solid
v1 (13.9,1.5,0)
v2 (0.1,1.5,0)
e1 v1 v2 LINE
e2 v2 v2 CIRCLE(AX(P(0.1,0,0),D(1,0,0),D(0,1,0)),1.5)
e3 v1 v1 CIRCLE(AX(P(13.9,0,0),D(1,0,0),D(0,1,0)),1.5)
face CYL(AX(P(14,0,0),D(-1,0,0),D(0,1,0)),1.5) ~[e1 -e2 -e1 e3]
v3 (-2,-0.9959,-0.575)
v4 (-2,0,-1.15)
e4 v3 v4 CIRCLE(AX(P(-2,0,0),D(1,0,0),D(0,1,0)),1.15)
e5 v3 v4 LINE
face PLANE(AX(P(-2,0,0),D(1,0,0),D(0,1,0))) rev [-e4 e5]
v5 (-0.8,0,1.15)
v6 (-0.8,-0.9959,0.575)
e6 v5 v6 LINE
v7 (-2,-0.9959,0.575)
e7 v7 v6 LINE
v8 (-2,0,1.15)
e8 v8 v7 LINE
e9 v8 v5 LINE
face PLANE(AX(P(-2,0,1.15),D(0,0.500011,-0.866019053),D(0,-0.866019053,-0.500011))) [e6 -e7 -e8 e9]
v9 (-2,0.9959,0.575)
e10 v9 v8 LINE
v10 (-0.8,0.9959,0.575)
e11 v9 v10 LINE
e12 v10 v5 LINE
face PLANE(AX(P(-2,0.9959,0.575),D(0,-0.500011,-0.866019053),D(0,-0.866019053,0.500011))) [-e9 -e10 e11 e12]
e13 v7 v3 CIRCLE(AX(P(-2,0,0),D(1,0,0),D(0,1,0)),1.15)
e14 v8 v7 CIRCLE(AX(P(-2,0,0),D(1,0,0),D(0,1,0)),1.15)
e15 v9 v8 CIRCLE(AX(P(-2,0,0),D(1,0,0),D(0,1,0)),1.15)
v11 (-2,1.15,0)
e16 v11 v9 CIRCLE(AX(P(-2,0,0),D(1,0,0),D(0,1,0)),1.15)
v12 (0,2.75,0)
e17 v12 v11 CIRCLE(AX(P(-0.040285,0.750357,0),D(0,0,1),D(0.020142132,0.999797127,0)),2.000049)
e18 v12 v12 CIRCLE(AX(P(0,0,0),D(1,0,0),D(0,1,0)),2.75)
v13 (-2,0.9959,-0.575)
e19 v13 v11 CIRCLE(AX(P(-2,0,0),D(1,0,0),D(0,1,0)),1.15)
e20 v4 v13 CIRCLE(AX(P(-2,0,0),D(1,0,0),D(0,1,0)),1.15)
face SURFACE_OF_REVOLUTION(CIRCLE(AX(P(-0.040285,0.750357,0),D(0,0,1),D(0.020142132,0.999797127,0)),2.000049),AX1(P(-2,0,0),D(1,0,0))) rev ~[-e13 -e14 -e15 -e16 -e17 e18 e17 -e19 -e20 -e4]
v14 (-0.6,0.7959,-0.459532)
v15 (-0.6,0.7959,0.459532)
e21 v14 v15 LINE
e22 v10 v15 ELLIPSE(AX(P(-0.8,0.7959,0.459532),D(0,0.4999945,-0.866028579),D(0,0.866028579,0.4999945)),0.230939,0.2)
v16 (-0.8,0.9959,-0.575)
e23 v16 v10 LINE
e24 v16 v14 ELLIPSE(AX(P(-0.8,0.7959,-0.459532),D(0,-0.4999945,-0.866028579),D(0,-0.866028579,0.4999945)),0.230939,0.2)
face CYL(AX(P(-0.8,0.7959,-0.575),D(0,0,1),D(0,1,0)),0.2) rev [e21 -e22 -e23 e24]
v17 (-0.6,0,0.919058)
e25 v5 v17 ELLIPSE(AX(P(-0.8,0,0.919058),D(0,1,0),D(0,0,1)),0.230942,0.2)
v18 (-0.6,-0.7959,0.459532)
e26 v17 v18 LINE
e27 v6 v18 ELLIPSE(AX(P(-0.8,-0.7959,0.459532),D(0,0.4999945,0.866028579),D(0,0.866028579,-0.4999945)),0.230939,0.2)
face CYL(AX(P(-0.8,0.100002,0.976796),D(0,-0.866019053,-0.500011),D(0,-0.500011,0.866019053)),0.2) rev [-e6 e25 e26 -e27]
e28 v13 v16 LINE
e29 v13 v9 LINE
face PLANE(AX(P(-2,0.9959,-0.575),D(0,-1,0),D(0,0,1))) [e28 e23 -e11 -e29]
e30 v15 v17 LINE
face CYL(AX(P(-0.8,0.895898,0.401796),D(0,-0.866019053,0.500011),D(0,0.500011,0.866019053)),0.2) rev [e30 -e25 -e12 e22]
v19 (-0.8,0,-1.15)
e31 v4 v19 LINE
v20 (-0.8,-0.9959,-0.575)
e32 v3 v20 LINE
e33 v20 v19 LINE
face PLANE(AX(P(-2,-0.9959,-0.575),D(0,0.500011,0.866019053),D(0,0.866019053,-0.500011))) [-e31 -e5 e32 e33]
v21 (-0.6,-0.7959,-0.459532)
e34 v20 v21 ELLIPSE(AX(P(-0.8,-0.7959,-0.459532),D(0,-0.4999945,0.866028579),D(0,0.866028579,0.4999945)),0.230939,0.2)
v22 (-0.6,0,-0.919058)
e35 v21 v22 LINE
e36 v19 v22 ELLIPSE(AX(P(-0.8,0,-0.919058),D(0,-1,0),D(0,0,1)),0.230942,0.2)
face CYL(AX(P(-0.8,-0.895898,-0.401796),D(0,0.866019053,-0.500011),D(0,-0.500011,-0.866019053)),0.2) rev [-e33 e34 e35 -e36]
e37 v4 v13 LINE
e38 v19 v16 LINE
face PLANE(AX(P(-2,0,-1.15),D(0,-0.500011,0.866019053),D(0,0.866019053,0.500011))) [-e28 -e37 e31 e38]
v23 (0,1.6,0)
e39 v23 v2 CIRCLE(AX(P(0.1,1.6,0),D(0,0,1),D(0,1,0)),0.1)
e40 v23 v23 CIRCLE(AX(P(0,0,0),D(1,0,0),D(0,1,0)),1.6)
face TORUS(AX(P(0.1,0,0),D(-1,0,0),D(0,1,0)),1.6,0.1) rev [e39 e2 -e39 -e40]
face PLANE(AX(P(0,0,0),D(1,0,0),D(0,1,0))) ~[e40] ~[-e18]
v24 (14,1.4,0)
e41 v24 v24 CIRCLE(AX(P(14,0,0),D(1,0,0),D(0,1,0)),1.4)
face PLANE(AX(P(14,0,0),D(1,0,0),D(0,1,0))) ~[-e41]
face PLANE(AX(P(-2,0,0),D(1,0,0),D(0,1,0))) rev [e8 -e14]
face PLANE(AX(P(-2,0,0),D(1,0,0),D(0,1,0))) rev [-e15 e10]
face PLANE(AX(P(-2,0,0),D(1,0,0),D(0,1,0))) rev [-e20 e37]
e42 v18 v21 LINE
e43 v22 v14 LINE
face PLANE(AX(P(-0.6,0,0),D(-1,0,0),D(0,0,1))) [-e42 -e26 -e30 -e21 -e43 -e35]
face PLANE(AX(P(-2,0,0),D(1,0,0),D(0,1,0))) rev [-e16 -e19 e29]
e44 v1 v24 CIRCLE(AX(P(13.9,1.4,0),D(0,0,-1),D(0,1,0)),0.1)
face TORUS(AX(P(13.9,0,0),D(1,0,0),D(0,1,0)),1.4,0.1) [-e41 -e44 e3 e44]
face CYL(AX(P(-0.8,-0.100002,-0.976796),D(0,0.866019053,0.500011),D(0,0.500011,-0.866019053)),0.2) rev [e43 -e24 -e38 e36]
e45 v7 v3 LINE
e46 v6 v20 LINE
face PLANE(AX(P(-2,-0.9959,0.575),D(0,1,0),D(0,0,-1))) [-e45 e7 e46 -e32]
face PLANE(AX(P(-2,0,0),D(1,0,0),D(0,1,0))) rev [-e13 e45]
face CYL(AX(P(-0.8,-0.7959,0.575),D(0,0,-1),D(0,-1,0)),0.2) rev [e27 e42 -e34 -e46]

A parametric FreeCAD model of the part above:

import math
import FreeCAD as App
import Part
import Sketcher
Q = App.Units.Quantity


def edges_at(feature, points):
    """Names of the edges that pass closest to the given points."""
    edges = feature.Shape.Edges
    near = lambda p: min(range(len(edges)), key=lambda i: edges[i].distToShape(Part.Vertex(*p))[0])
    return sorted({f"Edge{near(p) + 1}" for p in points})

doc = App.newDocument("Part")
params = doc.addObject("Spreadsheet::Sheet", "Params")
for row, (alias, value) in enumerate([
    ("sketch1_radius", "2 mm"),
    ("sketch1_width", "14 mm"),
    ("sketch1_height", "1.5 mm"),
    ("sketch1_height2", "1.15 mm"),
    ("revolution_angle", "360 deg"),
    ("sketch2_height", "1.15 mm"),
    ("sketch2_length", "1.15 mm"),
    ("pocket1_length", "1.4 mm"),
    ("fillet_radius", "0.2 mm"),
    ("fillet2_radius", "0.1 mm"),
    ("fillet3_radius", "0.1 mm"),
], start=1):
    params.set(f"A{row}", alias)
    params.set(f"B{row}", "=" + value)
    params.setAlias(f"B{row}", alias)

body = doc.addObject("PartDesign::Body", "Body")

sketch1 = body.newObject("Sketcher::SketchObject", "Sketch")
sketch1.AttachmentSupport = (doc.getObject("XY_Plane"), [""])
sketch1.MapMode = "FlatFace"
sketch1.addGeometry([
    Part.LineSegment(App.Vector(14, 1.5, 0), App.Vector(0, 1.5, 0)),
    Part.LineSegment(App.Vector(0, 1.5, 0), App.Vector(0, 2.75, 0)),
    Part.ArcOfCircle(Part.Circle(App.Vector(-0.0403, 0.7504, 0), App.Vector(0, 0, 1), 2.000006), math.radians(88.845415), math.radians(168.474888)),
    Part.LineSegment(App.Vector(-2, 1.15, 0), App.Vector(-2, 0, 0)),
    Part.LineSegment(App.Vector(-2, 0, 0), App.Vector(14, 0, 0)),
    Part.LineSegment(App.Vector(14, 0, 0), App.Vector(14, 1.5, 0)),
], False)
sketch1.addConstraint([
    Sketcher.Constraint("Coincident", 0, 2, 1, 1),
    Sketcher.Constraint("Coincident", 1, 2, 2, 1),
    Sketcher.Constraint("Coincident", 2, 2, 3, 1),
    Sketcher.Constraint("Coincident", 3, 2, 4, 1),
    Sketcher.Constraint("Coincident", 4, 2, 5, 1),
    Sketcher.Constraint("Coincident", 5, 2, 0, 1),
    Sketcher.Constraint("Horizontal", 0),
    Sketcher.Constraint("Vertical", 1),
    Sketcher.Constraint("Vertical", 3),
    Sketcher.Constraint("Horizontal", 4),
    Sketcher.Constraint("Vertical", 5),
    Sketcher.Constraint("PointOnObject", 0, 2, -2),
    Sketcher.Constraint("PointOnObject", 3, 2, -1),
    Sketcher.Constraint("Radius", 2, Q("2 mm")),
    Sketcher.Constraint("DistanceX", 0, 2, 0, 1, Q("14 mm")),
    Sketcher.Constraint("DistanceY", 5, 1, 5, 2, Q("1.5 mm")),
    Sketcher.Constraint("DistanceX", 2, 2, -1, 1, Q("2 mm")),
    Sketcher.Constraint("DistanceY", 3, 2, 3, 1, Q("1.15 mm")),
    Sketcher.Constraint("DistanceY", -1, 1, 1, 2, Q("2.75 mm")),
])
sketch1.setExpression("Constraints[13]", "Params.sketch1_radius")
sketch1.setExpression("Constraints[14]", "Params.sketch1_width")
sketch1.setExpression("Constraints[15]", "Params.sketch1_height")
sketch1.setExpression("Constraints[17]", "Params.sketch1_height2")
revolution = body.newObject("PartDesign::Revolution", "Revolution")
revolution.Profile = sketch1
revolution.ReferenceAxis = (sketch1, ["H_Axis"])
revolution.setExpression("Angle", "Params.revolution_angle")

sketch2 = body.newObject("Sketcher::SketchObject", "Sketch001")
sketch2.AttachmentSupport = (doc.getObject("YZ_Plane"), [""])
sketch2.MapMode = "FlatFace"
sketch2.AttachmentOffset = App.Placement(App.Vector(0, 0, -2), App.Rotation())
sketch2.addGeometry([
    Part.LineSegment(App.Vector(-0.9959, 0.575, 0), App.Vector(0, 1.15, 0)),
    Part.LineSegment(App.Vector(0, 1.15, 0), App.Vector(0.9959, 0.575, 0)),
    Part.LineSegment(App.Vector(0.9959, 0.575, 0), App.Vector(0.9959, -0.575, 0)),
    Part.LineSegment(App.Vector(0.9959, -0.575, 0), App.Vector(0, -1.15, 0)),
    Part.LineSegment(App.Vector(0, -1.15, 0), App.Vector(-0.9959, -0.575, 0)),
    Part.LineSegment(App.Vector(-0.9959, -0.575, 0), App.Vector(-0.9959, 0.575, 0)),
], False)
sketch2.addConstraint([
    Sketcher.Constraint("Coincident", 0, 2, 1, 1),
    Sketcher.Constraint("Coincident", 1, 2, 2, 1),
    Sketcher.Constraint("Coincident", 2, 2, 3, 1),
    Sketcher.Constraint("Coincident", 3, 2, 4, 1),
    Sketcher.Constraint("Coincident", 4, 2, 5, 1),
    Sketcher.Constraint("Coincident", 5, 2, 0, 1),
    Sketcher.Constraint("Vertical", 2),
    Sketcher.Constraint("Vertical", 5),
    Sketcher.Constraint("Symmetric", 0, 2, 3, 2, -1, 1),
    Sketcher.Constraint("Symmetric", 1, 2, 4, 2, -1, 1),
    Sketcher.Constraint("PointOnObject", 0, 2, -2),
    Sketcher.Constraint("Parallel", 0, 3),
    Sketcher.Constraint("Horizontal", 2, 2, 4, 2),
    Sketcher.Constraint("DistanceY", 2, 2, 2, 1, Q("1.15 mm")),
    Sketcher.Constraint("Distance", 0, Q("1.15 mm")),
    Sketcher.Constraint("DistanceY", -1, 1, 0, 2, Q("1.15 mm")),
])
sketch2.setExpression("Constraints[13]", "Params.sketch2_height")
sketch2.setExpression("Constraints[14]", "Params.sketch2_length")
pocket1 = body.newObject("PartDesign::Pocket", "Pocket")
pocket1.Profile = sketch2
pocket1.setExpression("Length", "Params.pocket1_length")
pocket1.Reversed = True
doc.recompute()

fillet = body.newObject("PartDesign::Fillet", "Fillet")
fillet.Base = (pocket1, edges_at(pocket1, [
    (-0.6, 0.996, 0),
    (-0.6, 0.498, 0.863),
    (-0.6, 0.498, -0.863),
    (-0.6, -0.498, -0.863),
    (-0.6, -0.996, 0),
    (-0.6, -0.498, 0.863),
]))
fillet.setExpression("Radius", "Params.fillet_radius")
doc.recompute()

fillet2 = body.newObject("PartDesign::Fillet", "Fillet001")
fillet2.Base = (fillet, edges_at(fillet, [(0, -1.5, 0)]))
fillet2.setExpression("Radius", "Params.fillet2_radius")
doc.recompute()

fillet3 = body.newObject("PartDesign::Fillet", "Fillet002")
fillet3.Base = (fillet2, edges_at(fillet2, [(14, -1.5, 0)]))
fillet3.setExpression("Radius", "Params.fillet3_radius")

doc.recompute()
